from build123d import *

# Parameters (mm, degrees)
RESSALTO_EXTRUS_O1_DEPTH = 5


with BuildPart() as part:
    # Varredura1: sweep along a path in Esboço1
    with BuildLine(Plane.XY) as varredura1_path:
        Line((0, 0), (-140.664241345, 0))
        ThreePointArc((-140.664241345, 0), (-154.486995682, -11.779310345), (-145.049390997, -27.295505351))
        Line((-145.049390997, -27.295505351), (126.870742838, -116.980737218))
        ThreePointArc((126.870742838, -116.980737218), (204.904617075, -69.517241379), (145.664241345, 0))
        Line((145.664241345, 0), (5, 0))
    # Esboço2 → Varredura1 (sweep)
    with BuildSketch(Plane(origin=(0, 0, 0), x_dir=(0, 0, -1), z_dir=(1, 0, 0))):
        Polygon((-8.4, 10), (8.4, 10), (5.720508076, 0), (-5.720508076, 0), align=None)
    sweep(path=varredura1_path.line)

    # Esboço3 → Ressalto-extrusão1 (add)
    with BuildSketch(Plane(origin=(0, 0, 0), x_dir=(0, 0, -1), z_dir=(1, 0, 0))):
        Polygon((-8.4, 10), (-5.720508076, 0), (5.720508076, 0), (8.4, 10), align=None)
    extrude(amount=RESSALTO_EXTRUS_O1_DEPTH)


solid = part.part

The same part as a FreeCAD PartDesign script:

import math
import FreeCAD as App
import Part
import Sketcher

V = App.Vector
Q = App.Units.Quantity


def add_polygon(sketch, points):
    """Adds a closed chain of lines whose ends are joined by coincident constraints."""
    first, n = sketch.GeometryCount, len(points)
    for a, b in zip(points, points[1:] + points[:1]):
        sketch.addGeometry(Part.LineSegment(App.Vector(*a, 0), App.Vector(*b, 0)), False)
    for i in range(n):
        sketch.addConstraint(Sketcher.Constraint("Coincident", first + i, 2, first + (i + 1) % n, 1))

doc = App.newDocument("Part")
body = doc.addObject("PartDesign::Body", "Body")

# Sketch on YZ plane
sketch1 = body.newObject("Sketcher::SketchObject", "Sketch")
sketch1.AttachmentSupport = (doc.getObject("YZ_Plane"), [""])
sketch1.MapMode = "FlatFace"
add_polygon(sketch1, [(10, -8.4), (10, 8.4), (0, 5.720508), (0, -5.720508)])  # lines 0-3
sketch1.addConstraint([
    Sketcher.Constraint("Vertical", 0),
    Sketcher.Constraint("Vertical", 2),
    Sketcher.Constraint("Symmetric", 1, 2, 2, 2, -1, 1),
    Sketcher.Constraint("Equal", 1, 3),
    Sketcher.Constraint("Angle", 1, Q("-165 deg")),
    Sketcher.Constraint("DistanceY", 0, 1, 0, 2, Q("16.8 mm")),
    Sketcher.Constraint("DistanceX", -1, 1, 0, 2, Q("10 mm")),
])

# Sketch on XY plane
sketch2 = body.newObject("Sketcher::SketchObject", "Sketch001")
sketch2.AttachmentSupport = (doc.getObject("XY_Plane"), [""])
sketch2.MapMode = "FlatFace"
sketch2.addGeometry([
    Part.LineSegment(V(0, 0, 0), V(-140.664241, 0, 0)),  # 0
    Part.ArcOfCircle(Part.Circle(V(-140.664241, -14, 0), V(0, 0, 1), 14), math.radians(90), math.radians(251.74631)),  # 1
    Part.LineSegment(V(-145.049391, -27.295505, 0), V(126.870743, -116.980737, 0)),  # 2
    Part.ArcOfCircle(Part.Circle(V(145.664241, -60, 0), V(0, 0, 1), 60), math.radians(-108.25369), math.radians(90)),  # 3
    Part.LineSegment(V(145.664241, 0, 0), V(5, 0, 0)),  # 4
], False)
sketch2.addConstraint([
    Sketcher.Constraint("Tangent", 0, 2, 1, 1),
    Sketcher.Constraint("Tangent", 1, 2, 2, 1),
    Sketcher.Constraint("Tangent", 2, 2, 3, 1),
    Sketcher.Constraint("Tangent", 3, 2, 4, 1),
    Sketcher.Constraint("Horizontal", 0),
    Sketcher.Constraint("Horizontal", 4),
    Sketcher.Constraint("Coincident", 0, 1, -1, 1),
    Sketcher.Constraint("PointOnObject", 3, 2, -1),
    Sketcher.Constraint("Equal", 0, 4),
    Sketcher.Constraint("Radius", 1, Q("14 mm")),
    Sketcher.Constraint("Radius", 3, Q("60 mm")),
    Sketcher.Constraint("DistanceX", -1, 1, 4, 2, Q("5 mm")),
    Sketcher.Constraint("DistanceX", 0, 2, 0, 1, Q("140.664241 mm")),
])
doc.recompute()

additivepipe = body.newObject("PartDesign::AdditivePipe", "AdditivePipe")
additivepipe.Profile = sketch1
additivepipe.Spine = (sketch2, ["Edge1", "Edge2", "Edge3", "Edge4", "Edge5"])

# Sketch on YZ plane
sketch3 = body.newObject("Sketcher::SketchObject", "Sketch002")
sketch3.AttachmentSupport = (doc.getObject("YZ_Plane"), [""])
sketch3.MapMode = "FlatFace"
add_polygon(sketch3, [(10, 8.4), (0, 5.720508), (0, -5.720508), (10, -8.4)])  # lines 0-3
sketch3.addConstraint([
    Sketcher.Constraint("Vertical", 1),
    Sketcher.Constraint("Vertical", 3),
    Sketcher.Constraint("Symmetric", 0, 2, 1, 2, -1, 1),
    Sketcher.Constraint("Equal", 0, 2),
    Sketcher.Constraint("Angle", 0, Q("-165 deg")),
    Sketcher.Constraint("DistanceY", 3, 1, 3, 2, Q("16.8 mm")),
    Sketcher.Constraint("DistanceX", -1, 1, 2, 2, Q("10 mm")),
])
pad1 = body.newObject("PartDesign::Pad", "Pad")
pad1.Profile = sketch3
pad1.Length = 5

doc.recompute()
